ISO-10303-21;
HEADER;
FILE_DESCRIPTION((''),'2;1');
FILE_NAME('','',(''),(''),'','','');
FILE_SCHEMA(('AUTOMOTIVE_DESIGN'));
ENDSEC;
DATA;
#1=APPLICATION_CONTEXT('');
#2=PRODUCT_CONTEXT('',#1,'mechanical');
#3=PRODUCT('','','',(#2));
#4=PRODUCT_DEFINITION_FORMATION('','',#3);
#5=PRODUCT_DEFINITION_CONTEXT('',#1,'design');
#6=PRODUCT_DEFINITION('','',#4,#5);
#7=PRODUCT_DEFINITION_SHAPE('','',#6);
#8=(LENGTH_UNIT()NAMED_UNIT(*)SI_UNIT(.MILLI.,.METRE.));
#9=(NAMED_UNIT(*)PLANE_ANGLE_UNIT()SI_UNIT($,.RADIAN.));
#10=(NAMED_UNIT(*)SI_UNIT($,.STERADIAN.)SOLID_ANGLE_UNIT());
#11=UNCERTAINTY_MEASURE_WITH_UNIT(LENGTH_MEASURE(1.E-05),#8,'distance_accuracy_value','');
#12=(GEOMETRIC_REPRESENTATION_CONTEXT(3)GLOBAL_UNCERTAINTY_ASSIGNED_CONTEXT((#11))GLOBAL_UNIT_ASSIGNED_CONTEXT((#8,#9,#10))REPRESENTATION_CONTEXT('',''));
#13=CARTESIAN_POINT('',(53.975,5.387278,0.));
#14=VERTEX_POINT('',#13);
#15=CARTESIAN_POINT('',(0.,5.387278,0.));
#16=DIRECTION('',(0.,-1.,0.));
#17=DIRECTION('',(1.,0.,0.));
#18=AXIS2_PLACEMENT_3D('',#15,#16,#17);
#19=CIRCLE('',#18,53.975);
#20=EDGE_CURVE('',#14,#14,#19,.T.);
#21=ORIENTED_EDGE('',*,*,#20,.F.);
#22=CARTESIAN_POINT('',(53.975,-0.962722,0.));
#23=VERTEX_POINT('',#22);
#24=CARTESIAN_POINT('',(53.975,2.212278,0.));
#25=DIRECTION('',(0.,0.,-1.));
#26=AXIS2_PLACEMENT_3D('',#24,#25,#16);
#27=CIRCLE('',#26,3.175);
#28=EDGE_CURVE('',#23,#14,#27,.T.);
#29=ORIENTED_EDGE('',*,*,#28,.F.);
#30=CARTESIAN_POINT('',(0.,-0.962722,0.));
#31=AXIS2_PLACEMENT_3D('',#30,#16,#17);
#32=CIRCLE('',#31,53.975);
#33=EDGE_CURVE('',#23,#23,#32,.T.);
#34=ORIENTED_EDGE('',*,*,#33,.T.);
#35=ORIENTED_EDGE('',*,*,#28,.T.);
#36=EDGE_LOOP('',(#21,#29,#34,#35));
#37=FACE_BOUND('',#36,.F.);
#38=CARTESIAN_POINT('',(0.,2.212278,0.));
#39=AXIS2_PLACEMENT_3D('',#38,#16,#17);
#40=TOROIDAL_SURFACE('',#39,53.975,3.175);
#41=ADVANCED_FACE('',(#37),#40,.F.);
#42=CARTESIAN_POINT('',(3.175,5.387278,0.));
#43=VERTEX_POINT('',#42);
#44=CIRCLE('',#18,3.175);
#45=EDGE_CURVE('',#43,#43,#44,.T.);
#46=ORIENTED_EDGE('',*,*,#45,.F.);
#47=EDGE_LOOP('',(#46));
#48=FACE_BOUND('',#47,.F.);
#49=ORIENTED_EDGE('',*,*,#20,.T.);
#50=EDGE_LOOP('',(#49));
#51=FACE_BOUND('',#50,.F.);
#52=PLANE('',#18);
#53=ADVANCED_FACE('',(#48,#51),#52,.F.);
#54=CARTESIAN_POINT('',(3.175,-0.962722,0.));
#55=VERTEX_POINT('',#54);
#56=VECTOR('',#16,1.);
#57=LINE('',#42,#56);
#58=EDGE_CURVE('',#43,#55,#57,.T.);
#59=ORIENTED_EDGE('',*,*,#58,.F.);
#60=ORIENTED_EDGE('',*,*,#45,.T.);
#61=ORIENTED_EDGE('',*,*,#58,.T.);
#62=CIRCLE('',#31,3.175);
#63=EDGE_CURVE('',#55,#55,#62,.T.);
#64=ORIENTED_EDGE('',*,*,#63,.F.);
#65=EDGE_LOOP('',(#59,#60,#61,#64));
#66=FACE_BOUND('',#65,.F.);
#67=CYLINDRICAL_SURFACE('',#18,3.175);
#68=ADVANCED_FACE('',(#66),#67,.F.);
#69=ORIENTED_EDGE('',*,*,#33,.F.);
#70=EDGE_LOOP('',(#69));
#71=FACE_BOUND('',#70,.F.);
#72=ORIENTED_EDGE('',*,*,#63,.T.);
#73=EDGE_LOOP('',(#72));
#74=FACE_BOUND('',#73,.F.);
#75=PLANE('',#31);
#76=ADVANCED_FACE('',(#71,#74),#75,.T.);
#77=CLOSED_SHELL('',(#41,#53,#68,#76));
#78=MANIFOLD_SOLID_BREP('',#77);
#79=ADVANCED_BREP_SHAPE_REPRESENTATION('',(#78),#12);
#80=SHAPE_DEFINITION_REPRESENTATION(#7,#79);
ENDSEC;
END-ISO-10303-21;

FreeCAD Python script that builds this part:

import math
import FreeCAD as App
import Part
import Sketcher
from FreeCAD import Vector
Q = App.Units.Quantity

doc = App.newDocument("Part")
body = doc.addObject("PartDesign::Body", "Body")

# Sketch on XY plane
sketch1 = body.newObject("Sketcher::SketchObject", "Sketch")
sketch1.AttachmentSupport = (doc.getObject("XY_Plane"), [""])
sketch1.MapMode = "FlatFace"
sketch1.addGeometry(Part.LineSegment(Vector(54, 5.4, 0), Vector(3.2, 5.4, 0)), False)
sketch1.addGeometry(Part.LineSegment(Vector(3.2, 5.4, 0), Vector(3.2, -1, 0)), False)
sketch1.addGeometry(Part.LineSegment(Vector(3.2, -1, 0), Vector(54, -1, 0)), False)
sketch1.addGeometry(Part.ArcOfCircle(Part.Circle(Vector(54, 2.2, 0), Vector(0, 0, 1), 3.2), math.radians(90), math.radians(270)), False)
sketch1.addConstraint(Sketcher.Constraint("Coincident", 0, 2, 1, 1))
sketch1.addConstraint(Sketcher.Constraint("Coincident", 1, 2, 2, 1))
sketch1.addConstraint(Sketcher.Constraint("Tangent", 2, 2, 3, 2))
sketch1.addConstraint(Sketcher.Constraint("Tangent", 3, 1, 0, 1))
sketch1.addConstraint(Sketcher.Constraint("Horizontal", 0))
sketch1.addConstraint(Sketcher.Constraint("Vertical", 1))
sketch1.addConstraint(Sketcher.Constraint("Horizontal", 2))
sketch1.addConstraint(Sketcher.Constraint("DistanceX", 0, 2, 0, 1, Q("2 in")))
sketch1.addConstraint(Sketcher.Constraint("Radius", 3, Q("0.125 in")))
sketch1.addConstraint(Sketcher.Constraint("DistanceX", -1, 1, 3, 3, Q("2.125 in")))
sketch1.addConstraint(Sketcher.Constraint("DistanceY", -1, 1, 3, 3, 2.212278))
revolution = body.newObject("PartDesign::Revolution", "Revolution")
revolution.Profile = sketch1
revolution.ReferenceAxis = (sketch1, ["V_Axis"])
revolution.Angle = 360

doc.recompute()
